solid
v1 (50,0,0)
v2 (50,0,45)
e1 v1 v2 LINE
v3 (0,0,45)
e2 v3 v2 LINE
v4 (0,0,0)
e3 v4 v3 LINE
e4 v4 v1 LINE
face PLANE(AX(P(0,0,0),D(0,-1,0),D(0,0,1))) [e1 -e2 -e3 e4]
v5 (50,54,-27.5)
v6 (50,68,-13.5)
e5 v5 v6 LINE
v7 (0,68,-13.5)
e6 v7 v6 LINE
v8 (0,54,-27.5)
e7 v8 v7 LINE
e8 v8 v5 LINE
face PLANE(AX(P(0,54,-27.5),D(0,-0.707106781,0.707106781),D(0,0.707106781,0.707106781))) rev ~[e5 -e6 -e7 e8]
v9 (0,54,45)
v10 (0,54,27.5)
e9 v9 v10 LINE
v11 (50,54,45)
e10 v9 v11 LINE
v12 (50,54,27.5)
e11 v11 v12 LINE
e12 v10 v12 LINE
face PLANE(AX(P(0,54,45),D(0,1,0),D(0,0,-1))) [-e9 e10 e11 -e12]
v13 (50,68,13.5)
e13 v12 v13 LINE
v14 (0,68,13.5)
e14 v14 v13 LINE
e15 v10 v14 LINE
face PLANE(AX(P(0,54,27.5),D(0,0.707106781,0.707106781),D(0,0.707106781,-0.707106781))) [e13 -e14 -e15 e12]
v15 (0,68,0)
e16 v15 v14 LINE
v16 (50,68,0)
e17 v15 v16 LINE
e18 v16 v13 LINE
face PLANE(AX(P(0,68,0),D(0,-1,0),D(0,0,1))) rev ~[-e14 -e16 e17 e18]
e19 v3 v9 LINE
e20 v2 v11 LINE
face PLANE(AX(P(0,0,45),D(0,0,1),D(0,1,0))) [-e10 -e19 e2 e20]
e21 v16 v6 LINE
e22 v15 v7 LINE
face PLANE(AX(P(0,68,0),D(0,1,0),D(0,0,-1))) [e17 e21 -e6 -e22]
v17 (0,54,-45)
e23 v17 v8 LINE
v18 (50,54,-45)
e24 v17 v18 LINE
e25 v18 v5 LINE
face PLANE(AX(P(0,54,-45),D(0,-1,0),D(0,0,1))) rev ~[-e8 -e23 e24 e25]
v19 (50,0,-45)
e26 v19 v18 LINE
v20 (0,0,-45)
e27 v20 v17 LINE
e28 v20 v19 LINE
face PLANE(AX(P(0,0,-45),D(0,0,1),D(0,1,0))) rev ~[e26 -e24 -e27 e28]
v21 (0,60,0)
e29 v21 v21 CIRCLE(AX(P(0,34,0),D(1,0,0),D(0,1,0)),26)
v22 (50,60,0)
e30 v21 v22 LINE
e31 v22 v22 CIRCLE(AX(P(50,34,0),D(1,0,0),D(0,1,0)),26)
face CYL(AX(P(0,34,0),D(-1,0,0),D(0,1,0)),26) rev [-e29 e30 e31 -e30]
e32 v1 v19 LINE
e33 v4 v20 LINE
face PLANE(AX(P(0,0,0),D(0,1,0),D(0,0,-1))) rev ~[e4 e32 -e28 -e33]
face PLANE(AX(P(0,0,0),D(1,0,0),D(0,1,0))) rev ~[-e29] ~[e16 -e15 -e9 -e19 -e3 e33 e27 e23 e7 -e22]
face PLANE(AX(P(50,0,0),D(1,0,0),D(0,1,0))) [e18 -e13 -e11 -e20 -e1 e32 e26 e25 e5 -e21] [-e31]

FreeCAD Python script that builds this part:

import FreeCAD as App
import Part
import Sketcher

V = App.Vector
Q = App.Units.Quantity

doc = App.newDocument("Part")
body = doc.addObject("PartDesign::Body", "Body")

# Sketch on YZ plane
sketch1 = body.newObject("Sketcher::SketchObject", "Sketch")
sketch1.AttachmentSupport = (doc.getObject("YZ_Plane"), [""])
sketch1.MapMode = "FlatFace"
sketch1.addGeometry([
    Part.LineSegment(V(0, 45, 0), V(0, -45, 0)),  # 0
    Part.LineSegment(V(0, -45, 0), V(54, -45, 0)),  # 1
    Part.LineSegment(V(54, -45, 0), V(54, -28, 0)),  # 2
    Part.LineSegment(V(54, -28, 0), V(68, -14, 0)),  # 3
    Part.LineSegment(V(68, -14, 0), V(68, 14, 0)),  # 4
    Part.LineSegment(V(68, 14, 0), V(54, 28, 0)),  # 5
    Part.LineSegment(V(54, 28, 0), V(54, 45, 0)),  # 6
    Part.LineSegment(V(54, 45, 0), V(0, 45, 0)),  # 7
    Part.Circle(V(34, 0, 0), V(0, 0, 1), 26),  # 8
], False)
sketch1.addConstraint([
    Sketcher.Constraint("Coincident", 0, 2, 1, 1),
    Sketcher.Constraint("Coincident", 1, 2, 2, 1),
    Sketcher.Constraint("Coincident", 2, 2, 3, 1),
    Sketcher.Constraint("Coincident", 3, 2, 4, 1),
    Sketcher.Constraint("Coincident", 4, 2, 5, 1),
    Sketcher.Constraint("Coincident", 5, 2, 6, 1),
    Sketcher.Constraint("Coincident", 6, 2, 7, 1),
    Sketcher.Constraint("Coincident", 7, 2, 0, 1),
    Sketcher.Constraint("Vertical", 0),
    Sketcher.Constraint("Horizontal", 1),
    Sketcher.Constraint("Vertical", 2),
    Sketcher.Constraint("Vertical", 4),
    Sketcher.Constraint("Vertical", 6),
    Sketcher.Constraint("Horizontal", 7),
    Sketcher.Constraint("Symmetric", 0, 2, 7, 2, -1, 1),
    Sketcher.Constraint("Symmetric", 2, 2, 5, 2, -1),
    Sketcher.Constraint("PointOnObject", 8, 3, -1),
    Sketcher.Constraint("Perpendicular", 3, 5),
    Sketcher.Constraint("Equal", 3, 5),
    Sketcher.Constraint("Diameter", 8, Q("52 mm")),
    Sketcher.Constraint("DistanceX", 1, 1, 1, 2, Q("54 mm")),
    Sketcher.Constraint("DistanceX", -1, 1, 8, 3, Q("34 mm")),
    Sketcher.Constraint("DistanceY", 0, 2, -1, 1, Q("45 mm")),
    Sketcher.Constraint("DistanceX", -1, 1, 3, 2, Q("68 mm")),
    Sketcher.Constraint("DistanceY", 2, 2, -1, 1, Q("27.5 mm")),
])
pad1 = body.newObject("PartDesign::Pad", "Pad")
pad1.Profile = sketch1
pad1.Length = 50

doc.recompute()
